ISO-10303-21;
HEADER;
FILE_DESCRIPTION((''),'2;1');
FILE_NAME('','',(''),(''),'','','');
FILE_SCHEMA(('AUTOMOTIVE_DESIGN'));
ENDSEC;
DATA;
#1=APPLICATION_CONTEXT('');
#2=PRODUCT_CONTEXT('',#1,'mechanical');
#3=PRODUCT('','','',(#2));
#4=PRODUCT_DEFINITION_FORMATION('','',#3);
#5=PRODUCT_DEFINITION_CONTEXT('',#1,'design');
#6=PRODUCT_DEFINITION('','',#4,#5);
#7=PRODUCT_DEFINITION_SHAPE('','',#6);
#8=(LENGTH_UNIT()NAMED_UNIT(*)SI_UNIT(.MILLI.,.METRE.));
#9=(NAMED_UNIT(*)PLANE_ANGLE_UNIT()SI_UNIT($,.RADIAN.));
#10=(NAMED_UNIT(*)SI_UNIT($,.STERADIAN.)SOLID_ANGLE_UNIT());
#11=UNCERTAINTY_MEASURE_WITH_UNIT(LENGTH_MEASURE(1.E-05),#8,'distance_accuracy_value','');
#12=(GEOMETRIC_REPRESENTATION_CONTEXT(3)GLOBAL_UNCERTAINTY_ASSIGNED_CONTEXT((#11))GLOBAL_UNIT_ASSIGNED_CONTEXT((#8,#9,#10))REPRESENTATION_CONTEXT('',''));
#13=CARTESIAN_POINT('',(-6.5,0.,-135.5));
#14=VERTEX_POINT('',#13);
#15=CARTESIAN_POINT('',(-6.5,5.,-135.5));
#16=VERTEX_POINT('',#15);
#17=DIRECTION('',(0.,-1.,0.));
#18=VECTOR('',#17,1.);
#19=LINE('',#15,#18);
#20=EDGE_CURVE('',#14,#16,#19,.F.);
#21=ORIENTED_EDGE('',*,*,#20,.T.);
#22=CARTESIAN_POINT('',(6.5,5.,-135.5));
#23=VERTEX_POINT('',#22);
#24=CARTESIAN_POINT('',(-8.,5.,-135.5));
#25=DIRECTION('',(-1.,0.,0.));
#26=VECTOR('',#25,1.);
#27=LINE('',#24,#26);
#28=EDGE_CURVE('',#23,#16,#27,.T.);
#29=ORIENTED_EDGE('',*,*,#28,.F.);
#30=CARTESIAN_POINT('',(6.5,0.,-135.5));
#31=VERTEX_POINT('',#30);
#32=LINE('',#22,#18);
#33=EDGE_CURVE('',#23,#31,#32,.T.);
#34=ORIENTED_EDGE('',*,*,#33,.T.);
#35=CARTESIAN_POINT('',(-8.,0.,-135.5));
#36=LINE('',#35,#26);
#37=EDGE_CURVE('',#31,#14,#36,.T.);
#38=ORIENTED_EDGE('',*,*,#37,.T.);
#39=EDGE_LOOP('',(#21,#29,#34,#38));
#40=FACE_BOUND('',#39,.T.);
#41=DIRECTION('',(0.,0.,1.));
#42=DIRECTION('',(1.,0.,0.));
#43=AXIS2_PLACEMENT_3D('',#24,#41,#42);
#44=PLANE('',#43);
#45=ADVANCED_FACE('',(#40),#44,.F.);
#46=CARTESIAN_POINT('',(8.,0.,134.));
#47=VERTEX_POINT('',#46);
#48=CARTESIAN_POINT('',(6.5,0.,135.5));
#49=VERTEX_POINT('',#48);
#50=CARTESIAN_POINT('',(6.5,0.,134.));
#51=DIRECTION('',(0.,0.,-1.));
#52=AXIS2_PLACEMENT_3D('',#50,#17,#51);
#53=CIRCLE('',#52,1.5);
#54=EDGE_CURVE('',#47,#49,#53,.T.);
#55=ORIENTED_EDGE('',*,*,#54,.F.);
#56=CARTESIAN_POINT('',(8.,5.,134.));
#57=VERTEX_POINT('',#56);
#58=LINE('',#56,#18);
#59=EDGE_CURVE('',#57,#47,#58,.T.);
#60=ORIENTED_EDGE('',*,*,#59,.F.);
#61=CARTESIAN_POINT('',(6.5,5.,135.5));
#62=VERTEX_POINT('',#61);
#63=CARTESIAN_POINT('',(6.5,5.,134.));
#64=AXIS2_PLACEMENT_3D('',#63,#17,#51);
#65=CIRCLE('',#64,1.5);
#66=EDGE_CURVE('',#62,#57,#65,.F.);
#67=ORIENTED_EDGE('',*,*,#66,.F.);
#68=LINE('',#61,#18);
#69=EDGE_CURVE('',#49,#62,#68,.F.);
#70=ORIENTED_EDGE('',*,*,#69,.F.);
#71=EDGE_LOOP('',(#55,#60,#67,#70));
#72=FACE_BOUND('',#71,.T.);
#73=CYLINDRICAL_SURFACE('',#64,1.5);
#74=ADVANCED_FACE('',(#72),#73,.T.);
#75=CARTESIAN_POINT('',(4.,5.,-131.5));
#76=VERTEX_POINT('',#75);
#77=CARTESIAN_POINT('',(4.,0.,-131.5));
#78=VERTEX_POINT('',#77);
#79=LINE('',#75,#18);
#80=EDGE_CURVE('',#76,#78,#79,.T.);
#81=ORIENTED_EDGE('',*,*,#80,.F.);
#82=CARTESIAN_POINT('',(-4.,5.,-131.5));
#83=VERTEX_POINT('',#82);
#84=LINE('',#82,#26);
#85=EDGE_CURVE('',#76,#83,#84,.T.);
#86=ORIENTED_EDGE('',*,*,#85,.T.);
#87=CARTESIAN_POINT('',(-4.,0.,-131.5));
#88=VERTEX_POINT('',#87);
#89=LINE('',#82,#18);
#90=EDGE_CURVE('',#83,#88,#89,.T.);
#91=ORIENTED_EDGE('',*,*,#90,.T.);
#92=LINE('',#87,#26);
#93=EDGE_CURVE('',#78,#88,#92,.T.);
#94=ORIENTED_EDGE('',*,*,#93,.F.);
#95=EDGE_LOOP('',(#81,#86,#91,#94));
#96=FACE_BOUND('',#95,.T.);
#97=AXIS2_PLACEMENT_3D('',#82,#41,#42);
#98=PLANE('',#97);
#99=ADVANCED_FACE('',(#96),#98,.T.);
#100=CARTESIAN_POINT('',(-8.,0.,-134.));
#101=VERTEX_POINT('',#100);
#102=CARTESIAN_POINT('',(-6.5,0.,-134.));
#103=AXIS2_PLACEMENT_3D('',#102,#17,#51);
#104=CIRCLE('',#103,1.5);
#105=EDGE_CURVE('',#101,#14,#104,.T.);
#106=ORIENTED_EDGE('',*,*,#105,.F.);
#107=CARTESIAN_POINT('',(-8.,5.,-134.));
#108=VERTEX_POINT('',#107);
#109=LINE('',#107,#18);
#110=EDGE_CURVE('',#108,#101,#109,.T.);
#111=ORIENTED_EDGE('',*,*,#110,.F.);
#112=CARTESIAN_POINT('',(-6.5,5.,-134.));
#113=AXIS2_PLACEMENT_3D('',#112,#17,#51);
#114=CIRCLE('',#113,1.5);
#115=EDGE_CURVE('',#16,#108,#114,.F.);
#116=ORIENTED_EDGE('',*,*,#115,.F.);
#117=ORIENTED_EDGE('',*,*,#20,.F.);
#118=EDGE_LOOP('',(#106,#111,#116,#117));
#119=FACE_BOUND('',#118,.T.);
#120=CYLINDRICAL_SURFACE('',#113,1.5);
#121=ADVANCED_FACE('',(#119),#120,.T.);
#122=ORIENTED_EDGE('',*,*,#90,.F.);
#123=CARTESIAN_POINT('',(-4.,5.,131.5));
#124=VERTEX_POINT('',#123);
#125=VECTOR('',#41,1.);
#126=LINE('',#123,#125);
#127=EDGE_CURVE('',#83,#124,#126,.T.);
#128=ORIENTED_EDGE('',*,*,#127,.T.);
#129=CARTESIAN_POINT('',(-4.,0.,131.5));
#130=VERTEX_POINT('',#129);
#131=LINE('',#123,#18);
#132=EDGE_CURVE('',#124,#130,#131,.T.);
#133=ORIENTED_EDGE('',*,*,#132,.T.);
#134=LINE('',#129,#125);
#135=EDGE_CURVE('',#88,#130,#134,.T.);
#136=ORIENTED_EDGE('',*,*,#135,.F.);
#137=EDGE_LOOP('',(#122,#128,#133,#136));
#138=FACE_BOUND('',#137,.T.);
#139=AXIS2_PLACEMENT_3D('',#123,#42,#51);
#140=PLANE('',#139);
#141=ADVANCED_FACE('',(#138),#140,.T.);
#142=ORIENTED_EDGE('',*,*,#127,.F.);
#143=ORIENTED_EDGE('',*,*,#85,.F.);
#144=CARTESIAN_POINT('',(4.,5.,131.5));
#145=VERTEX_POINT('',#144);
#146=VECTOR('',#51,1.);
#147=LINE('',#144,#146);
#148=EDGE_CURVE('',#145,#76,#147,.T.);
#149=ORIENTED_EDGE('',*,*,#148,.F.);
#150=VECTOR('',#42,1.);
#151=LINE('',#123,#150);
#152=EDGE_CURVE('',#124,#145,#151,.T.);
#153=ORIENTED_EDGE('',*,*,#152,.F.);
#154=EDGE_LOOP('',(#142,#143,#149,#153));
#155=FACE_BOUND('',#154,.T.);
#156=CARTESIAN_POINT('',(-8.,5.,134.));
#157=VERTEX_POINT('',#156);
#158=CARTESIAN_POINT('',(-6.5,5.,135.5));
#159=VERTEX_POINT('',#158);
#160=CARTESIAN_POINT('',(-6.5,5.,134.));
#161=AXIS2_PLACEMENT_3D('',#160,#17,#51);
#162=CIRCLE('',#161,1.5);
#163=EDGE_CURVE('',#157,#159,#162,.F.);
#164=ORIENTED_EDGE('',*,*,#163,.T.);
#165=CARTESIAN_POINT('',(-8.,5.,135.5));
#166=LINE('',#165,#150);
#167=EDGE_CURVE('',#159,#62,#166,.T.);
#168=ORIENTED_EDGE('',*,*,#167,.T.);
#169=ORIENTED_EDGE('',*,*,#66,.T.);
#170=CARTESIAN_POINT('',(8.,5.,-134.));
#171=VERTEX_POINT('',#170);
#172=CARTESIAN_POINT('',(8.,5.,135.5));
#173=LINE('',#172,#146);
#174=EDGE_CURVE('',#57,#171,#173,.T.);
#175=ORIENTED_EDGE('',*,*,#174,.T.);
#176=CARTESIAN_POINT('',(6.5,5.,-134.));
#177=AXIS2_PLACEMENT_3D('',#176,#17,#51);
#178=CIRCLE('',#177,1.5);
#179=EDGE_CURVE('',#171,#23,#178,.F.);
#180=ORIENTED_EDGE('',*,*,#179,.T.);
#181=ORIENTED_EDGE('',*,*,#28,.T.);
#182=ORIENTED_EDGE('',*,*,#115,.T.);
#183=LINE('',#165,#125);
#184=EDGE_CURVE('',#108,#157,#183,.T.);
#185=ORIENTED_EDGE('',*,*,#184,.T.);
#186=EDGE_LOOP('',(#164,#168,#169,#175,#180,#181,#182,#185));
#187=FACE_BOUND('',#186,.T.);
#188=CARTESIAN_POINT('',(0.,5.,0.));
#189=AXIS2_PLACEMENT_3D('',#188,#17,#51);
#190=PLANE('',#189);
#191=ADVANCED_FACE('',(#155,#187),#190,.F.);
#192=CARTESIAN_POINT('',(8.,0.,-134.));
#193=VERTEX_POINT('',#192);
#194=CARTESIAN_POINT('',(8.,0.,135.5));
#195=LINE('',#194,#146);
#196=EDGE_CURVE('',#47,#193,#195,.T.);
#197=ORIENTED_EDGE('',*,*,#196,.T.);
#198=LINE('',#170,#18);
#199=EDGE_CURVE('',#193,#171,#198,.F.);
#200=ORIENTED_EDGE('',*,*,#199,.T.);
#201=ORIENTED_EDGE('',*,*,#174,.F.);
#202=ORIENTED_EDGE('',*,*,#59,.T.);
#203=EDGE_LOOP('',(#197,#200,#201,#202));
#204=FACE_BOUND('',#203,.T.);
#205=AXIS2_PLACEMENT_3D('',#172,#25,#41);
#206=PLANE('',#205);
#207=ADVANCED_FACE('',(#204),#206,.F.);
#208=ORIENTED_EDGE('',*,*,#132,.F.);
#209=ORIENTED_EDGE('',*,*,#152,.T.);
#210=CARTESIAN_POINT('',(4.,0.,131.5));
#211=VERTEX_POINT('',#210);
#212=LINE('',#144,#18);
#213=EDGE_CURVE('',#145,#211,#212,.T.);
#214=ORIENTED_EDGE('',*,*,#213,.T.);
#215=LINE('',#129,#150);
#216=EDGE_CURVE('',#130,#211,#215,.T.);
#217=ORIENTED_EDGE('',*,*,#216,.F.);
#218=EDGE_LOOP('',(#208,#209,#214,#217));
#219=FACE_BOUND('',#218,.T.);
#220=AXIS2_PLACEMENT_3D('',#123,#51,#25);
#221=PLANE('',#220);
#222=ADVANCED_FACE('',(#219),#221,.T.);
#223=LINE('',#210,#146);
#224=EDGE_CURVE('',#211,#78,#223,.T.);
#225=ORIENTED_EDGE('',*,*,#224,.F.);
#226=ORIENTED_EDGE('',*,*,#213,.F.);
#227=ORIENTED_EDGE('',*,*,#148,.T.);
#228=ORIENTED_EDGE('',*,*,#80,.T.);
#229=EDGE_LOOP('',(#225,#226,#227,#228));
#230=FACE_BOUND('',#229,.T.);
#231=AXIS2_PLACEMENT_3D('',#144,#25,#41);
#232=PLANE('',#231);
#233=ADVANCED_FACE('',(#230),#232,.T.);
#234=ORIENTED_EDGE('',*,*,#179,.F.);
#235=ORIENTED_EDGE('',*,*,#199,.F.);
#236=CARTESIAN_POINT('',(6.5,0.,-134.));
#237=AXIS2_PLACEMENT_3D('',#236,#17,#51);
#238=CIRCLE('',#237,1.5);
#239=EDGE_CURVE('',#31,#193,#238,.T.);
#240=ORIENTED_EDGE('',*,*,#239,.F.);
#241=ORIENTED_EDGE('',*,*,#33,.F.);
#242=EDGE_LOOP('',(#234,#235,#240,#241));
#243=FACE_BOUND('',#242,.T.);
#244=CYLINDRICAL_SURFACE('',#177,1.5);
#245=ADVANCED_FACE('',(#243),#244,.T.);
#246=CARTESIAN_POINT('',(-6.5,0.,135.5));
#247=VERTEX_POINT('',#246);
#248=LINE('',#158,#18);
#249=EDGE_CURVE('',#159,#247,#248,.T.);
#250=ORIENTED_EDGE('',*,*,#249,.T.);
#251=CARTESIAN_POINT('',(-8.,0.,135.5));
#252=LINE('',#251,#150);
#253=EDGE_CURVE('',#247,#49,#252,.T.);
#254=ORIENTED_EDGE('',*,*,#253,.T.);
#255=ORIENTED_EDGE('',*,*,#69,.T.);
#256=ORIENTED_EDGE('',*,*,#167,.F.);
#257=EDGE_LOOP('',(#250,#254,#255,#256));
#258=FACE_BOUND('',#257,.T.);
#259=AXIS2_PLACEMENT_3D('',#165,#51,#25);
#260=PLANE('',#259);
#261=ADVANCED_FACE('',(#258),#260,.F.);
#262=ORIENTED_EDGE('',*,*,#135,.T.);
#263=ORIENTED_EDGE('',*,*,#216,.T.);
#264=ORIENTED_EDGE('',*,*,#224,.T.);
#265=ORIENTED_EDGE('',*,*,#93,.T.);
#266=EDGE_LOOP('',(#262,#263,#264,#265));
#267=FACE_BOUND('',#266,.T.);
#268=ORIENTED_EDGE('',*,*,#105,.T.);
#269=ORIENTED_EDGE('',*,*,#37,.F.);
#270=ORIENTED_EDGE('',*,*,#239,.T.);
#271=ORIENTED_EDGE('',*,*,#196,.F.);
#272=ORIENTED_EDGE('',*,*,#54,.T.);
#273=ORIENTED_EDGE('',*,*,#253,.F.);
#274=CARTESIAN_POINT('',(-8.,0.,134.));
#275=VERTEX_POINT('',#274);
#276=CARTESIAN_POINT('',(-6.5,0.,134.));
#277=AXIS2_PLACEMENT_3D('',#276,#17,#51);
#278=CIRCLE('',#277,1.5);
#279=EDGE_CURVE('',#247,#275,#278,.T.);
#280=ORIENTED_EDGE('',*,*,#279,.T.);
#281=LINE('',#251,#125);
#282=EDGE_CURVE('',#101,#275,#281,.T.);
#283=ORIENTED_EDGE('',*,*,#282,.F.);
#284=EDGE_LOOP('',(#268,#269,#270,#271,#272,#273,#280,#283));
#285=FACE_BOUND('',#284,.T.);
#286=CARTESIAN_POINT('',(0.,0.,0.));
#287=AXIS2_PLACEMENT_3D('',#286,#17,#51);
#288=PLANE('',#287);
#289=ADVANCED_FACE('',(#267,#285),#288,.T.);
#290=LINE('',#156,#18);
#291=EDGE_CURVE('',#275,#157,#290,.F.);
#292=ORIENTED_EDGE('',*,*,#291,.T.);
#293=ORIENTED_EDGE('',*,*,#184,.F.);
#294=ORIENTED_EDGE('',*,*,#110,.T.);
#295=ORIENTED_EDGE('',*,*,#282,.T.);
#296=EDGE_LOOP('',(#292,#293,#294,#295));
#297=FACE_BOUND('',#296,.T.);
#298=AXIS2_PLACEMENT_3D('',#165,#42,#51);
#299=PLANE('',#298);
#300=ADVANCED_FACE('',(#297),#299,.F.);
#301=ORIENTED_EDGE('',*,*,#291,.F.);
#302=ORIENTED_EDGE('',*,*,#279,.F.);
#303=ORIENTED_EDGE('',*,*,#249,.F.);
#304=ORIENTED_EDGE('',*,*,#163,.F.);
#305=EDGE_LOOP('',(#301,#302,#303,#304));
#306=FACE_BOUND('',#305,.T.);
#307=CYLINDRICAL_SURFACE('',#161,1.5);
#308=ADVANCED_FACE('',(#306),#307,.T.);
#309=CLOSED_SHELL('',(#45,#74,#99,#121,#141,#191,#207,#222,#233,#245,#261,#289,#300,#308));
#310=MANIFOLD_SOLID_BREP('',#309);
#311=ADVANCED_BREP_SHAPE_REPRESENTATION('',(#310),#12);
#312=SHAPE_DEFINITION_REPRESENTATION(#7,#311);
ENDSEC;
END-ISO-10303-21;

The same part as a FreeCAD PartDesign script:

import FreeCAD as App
import Part
import Sketcher
from FreeCAD import Vector
Q = App.Units.Quantity


def edges_at(feature, points):
    """Names of the edges that pass closest to the given points."""
    edges = feature.Shape.Edges
    near = lambda p: min(range(len(edges)), key=lambda i: edges[i].distToShape(Part.Vertex(*p))[0])
    return sorted({f"Edge{near(p) + 1}" for p in points})


def add_polygon(sketch, points):
    """Adds a closed chain of lines whose ends are joined by coincident constraints."""
    first, n = sketch.GeometryCount, len(points)
    for a, b in zip(points, points[1:] + points[:1]):
        sketch.addGeometry(Part.LineSegment(App.Vector(*a, 0), App.Vector(*b, 0)), False)
    for i in range(n):
        sketch.addConstraint(Sketcher.Constraint("Coincident", first + i, 2, first + (i + 1) % n, 1))

doc = App.newDocument("Part")
body = doc.addObject("PartDesign::Body", "Body")

# Sketch on XZ plane
sketch1 = doc.addObject("Sketcher::SketchObject", "Sketch")
body.addObject(sketch1)
sketch1.AttachmentSupport = (doc.XZ_Plane, [""])
sketch1.MapMode = "FlatFace"
add_polygon(sketch1, [(-8, -136), (-8, 136), (8, 136), (8, -136)])  # lines 0-3
add_polygon(sketch1, [(4, 132), (-4, 132), (-4, -132), (4, -132)])  # lines 4-7
sketch1.addConstraint(Sketcher.Constraint("Vertical", 0))
sketch1.addConstraint(Sketcher.Constraint("Horizontal", 1))
sketch1.addConstraint(Sketcher.Constraint("Vertical", 2))
sketch1.addConstraint(Sketcher.Constraint("Horizontal", 3))
sketch1.addConstraint(Sketcher.Constraint("Horizontal", 4))
sketch1.addConstraint(Sketcher.Constraint("Vertical", 5))
sketch1.addConstraint(Sketcher.Constraint("Horizontal", 6))
sketch1.addConstraint(Sketcher.Constraint("Vertical", 7))
sketch1.addConstraint(Sketcher.Constraint("Symmetric", 0, 2, 2, 2, -1, 1))
sketch1.addConstraint(Sketcher.Constraint("Symmetric", 4, 2, 6, 2, -1, 1))
sketch1.addConstraint(Sketcher.Constraint("DistanceX", 1, 1, 1, 2, Q("16 mm")))
sketch1.addConstraint(Sketcher.Constraint("DistanceX", 4, 2, 4, 1, Q("8 mm")))
sketch1.addConstraint(Sketcher.Constraint("DistanceY", 0, 1, 0, 2, Q("271 mm")))
sketch1.addConstraint(Sketcher.Constraint("DistanceY", 5, 2, 5, 1, Q("263 mm")))
pad1 = doc.addObject("PartDesign::Pad", "Pad")
body.addObject(pad1)
pad1.Profile = sketch1
pad1.Length = 5
pad1.Reversed = True
doc.recompute()

fillet = doc.addObject("PartDesign::Fillet", "Fillet")
body.addObject(fillet)
fillet.Base = (pad1, edges_at(pad1, [
    (8, 2.5, 135.5),
    (-8, 2.5, 135.5),
    (-8, 2.5, -135.5),
    (8, 2.5, -135.5),
]))
fillet.Radius = 1.5

doc.recompute()
